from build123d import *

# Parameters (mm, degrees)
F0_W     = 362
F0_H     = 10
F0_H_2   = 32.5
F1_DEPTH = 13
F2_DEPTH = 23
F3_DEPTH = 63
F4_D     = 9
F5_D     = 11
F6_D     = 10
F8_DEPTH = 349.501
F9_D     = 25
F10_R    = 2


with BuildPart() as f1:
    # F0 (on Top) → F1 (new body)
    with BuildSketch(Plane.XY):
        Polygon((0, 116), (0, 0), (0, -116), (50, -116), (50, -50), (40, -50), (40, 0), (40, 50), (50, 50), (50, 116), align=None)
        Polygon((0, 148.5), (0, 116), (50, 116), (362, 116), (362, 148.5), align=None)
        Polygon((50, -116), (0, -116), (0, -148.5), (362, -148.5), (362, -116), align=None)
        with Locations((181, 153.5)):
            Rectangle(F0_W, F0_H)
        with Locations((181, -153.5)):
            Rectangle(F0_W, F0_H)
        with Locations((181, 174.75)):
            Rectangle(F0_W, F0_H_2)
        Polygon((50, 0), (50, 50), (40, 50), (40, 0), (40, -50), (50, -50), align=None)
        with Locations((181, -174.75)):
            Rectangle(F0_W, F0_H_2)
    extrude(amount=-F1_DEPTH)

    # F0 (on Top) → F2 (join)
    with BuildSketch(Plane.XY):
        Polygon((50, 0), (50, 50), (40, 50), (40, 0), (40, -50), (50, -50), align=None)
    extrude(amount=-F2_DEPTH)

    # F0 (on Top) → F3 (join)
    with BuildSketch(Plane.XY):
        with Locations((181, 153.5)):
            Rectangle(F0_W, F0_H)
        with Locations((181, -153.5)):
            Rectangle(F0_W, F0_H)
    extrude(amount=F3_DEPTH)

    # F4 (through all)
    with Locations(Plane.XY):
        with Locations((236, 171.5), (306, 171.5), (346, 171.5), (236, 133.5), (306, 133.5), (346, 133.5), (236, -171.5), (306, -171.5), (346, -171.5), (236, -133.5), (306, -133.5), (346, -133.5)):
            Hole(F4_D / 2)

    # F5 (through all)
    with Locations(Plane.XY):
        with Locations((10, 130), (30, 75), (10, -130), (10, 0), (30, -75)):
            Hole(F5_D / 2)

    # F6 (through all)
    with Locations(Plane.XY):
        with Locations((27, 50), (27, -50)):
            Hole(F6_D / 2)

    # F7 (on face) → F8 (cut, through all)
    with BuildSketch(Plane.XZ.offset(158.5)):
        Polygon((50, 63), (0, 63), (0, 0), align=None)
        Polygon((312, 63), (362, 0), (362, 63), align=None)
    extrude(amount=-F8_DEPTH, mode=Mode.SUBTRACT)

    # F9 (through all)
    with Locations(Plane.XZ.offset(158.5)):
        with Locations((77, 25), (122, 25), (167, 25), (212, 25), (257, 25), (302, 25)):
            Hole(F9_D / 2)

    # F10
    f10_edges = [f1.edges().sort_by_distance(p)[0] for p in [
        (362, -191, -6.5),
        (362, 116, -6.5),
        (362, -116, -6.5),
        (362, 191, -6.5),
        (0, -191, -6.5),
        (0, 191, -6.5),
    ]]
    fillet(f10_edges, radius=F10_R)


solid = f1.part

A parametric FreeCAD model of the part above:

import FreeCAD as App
import Part
import Sketcher
from FreeCAD import Vector


def edges_at(feature, points):
    """Names of the edges that pass closest to the given points."""
    edges = feature.Shape.Edges
    near = lambda p: min(range(len(edges)), key=lambda i: edges[i].distToShape(Part.Vertex(*p))[0])
    return sorted({f"Edge{near(p) + 1}" for p in points})

doc = App.newDocument("Part")
body = doc.addObject("PartDesign::Body", "Body")

sketch1 = body.newObject("Sketcher::SketchObject", "Sketch")
sketch1.AttachmentSupport = (doc.getObject("XY_Plane"), [""])
sketch1.MapMode = "FlatFace"
sketch1.addGeometry([
    Part.LineSegment(Vector(50, -116, 0), Vector(50, 116, 0)),
    Part.LineSegment(Vector(50, 116, 0), Vector(362, 116, 0)),
    Part.LineSegment(Vector(362, 116, 0), Vector(362, 191, 0)),
    Part.LineSegment(Vector(362, 191, 0), Vector(0, 191, 0)),
    Part.LineSegment(Vector(0, 191, 0), Vector(0, -191, 0)),
    Part.LineSegment(Vector(0, -191, 0), Vector(362, -191, 0)),
    Part.LineSegment(Vector(362, -191, 0), Vector(362, -116, 0)),
    Part.LineSegment(Vector(362, -116, 0), Vector(50, -116, 0)),
], False)
sketch1.addConstraint([
    Sketcher.Constraint("Coincident", 0, 2, 1, 1),
    Sketcher.Constraint("Coincident", 1, 2, 2, 1),
    Sketcher.Constraint("Coincident", 2, 2, 3, 1),
    Sketcher.Constraint("Coincident", 3, 2, 4, 1),
    Sketcher.Constraint("Coincident", 4, 2, 5, 1),
    Sketcher.Constraint("Coincident", 5, 2, 6, 1),
    Sketcher.Constraint("Coincident", 6, 2, 7, 1),
    Sketcher.Constraint("Coincident", 7, 2, 0, 1),
    Sketcher.Constraint("Vertical", 0),
    Sketcher.Constraint("Horizontal", 1),
    Sketcher.Constraint("Vertical", 2),
    Sketcher.Constraint("Horizontal", 3),
    Sketcher.Constraint("Vertical", 4),
    Sketcher.Constraint("Horizontal", 5),
    Sketcher.Constraint("Vertical", 6),
    Sketcher.Constraint("Horizontal", 7),
    Sketcher.Constraint("Symmetric", 3, 2, 4, 2, -1, 1),
    Sketcher.Constraint("Symmetric", 1, 2, 6, 2, -1),
    Sketcher.Constraint("DistanceX", 1, 1, 1, 2, 312.0),
    Sketcher.Constraint("DistanceX", 3, 2, 3, 1, 362.0),
    Sketcher.Constraint("DistanceY", 0, 1, 0, 2, 232.0),
    Sketcher.Constraint("DistanceY", 2, 1, 2, 2, 75.0),
])
pad1 = body.newObject("PartDesign::Pad", "Pad")
pad1.Profile = sketch1
pad1.Length = 13
pad1.Reversed = True

sketch2 = body.newObject("Sketcher::SketchObject", "Sketch001")
sketch2.AttachmentSupport = (doc.getObject("XY_Plane"), [""])
sketch2.MapMode = "FlatFace"
sketch2.addGeometry([
    Part.LineSegment(Vector(50, 50, 0), Vector(40, 50, 0)),
    Part.LineSegment(Vector(40, 50, 0), Vector(40, -50, 0)),
    Part.LineSegment(Vector(40, -50, 0), Vector(50, -50, 0)),
    Part.LineSegment(Vector(50, -50, 0), Vector(50, 50, 0)),
], False)
sketch2.addConstraint([
    Sketcher.Constraint("Coincident", 0, 2, 1, 1),
    Sketcher.Constraint("Coincident", 1, 2, 2, 1),
    Sketcher.Constraint("Coincident", 2, 2, 3, 1),
    Sketcher.Constraint("Coincident", 3, 2, 0, 1),
    Sketcher.Constraint("Horizontal", 0),
    Sketcher.Constraint("Vertical", 1),
    Sketcher.Constraint("Horizontal", 2),
    Sketcher.Constraint("Vertical", 3),
    Sketcher.Constraint("DistanceX", 0, 2, 0, 1, 10.0),
    Sketcher.Constraint("DistanceY", 1, 2, 1, 1, 100.0),
    Sketcher.Constraint("DistanceX", -1, 1, 0, 2, 40.0),
    Sketcher.Constraint("DistanceY", -1, 1, 0, 2, 50.0),
])
pad2 = body.newObject("PartDesign::Pad", "Pad001")
pad2.Profile = sketch2
pad2.Length = 23
pad2.Reversed = True

sketch3 = body.newObject("Sketcher::SketchObject", "Sketch002")
sketch3.AttachmentSupport = (doc.getObject("XY_Plane"), [""])
sketch3.MapMode = "FlatFace"
sketch3.addGeometry([
    Part.LineSegment(Vector(0, 158.5, 0), Vector(0, 148.5, 0)),
    Part.LineSegment(Vector(0, 148.5, 0), Vector(362, 148.5, 0)),
    Part.LineSegment(Vector(362, 148.5, 0), Vector(362, 158.5, 0)),
    Part.LineSegment(Vector(362, 158.5, 0), Vector(0, 158.5, 0)),
    Part.LineSegment(Vector(0, -148.5, 0), Vector(0, -158.5, 0)),
    Part.LineSegment(Vector(0, -158.5, 0), Vector(362, -158.5, 0)),
    Part.LineSegment(Vector(362, -158.5, 0), Vector(362, -148.5, 0)),
    Part.LineSegment(Vector(362, -148.5, 0), Vector(0, -148.5, 0)),
], False)
sketch3.addConstraint([
    Sketcher.Constraint("Coincident", 0, 2, 1, 1),
    Sketcher.Constraint("Coincident", 1, 2, 2, 1),
    Sketcher.Constraint("Coincident", 2, 2, 3, 1),
    Sketcher.Constraint("Coincident", 3, 2, 0, 1),
    Sketcher.Constraint("Coincident", 4, 2, 5, 1),
    Sketcher.Constraint("Coincident", 5, 2, 6, 1),
    Sketcher.Constraint("Coincident", 6, 2, 7, 1),
    Sketcher.Constraint("Coincident", 7, 2, 4, 1),
    Sketcher.Constraint("Vertical", 0),
    Sketcher.Constraint("Horizontal", 1),
    Sketcher.Constraint("Vertical", 2),
    Sketcher.Constraint("Horizontal", 3),
    Sketcher.Constraint("Vertical", 4),
    Sketcher.Constraint("Horizontal", 5),
    Sketcher.Constraint("Vertical", 6),
    Sketcher.Constraint("Horizontal", 7),
    Sketcher.Constraint("Symmetric", 3, 2, 4, 2, -1, 1),
    Sketcher.Constraint("Symmetric", 1, 2, 6, 2, -1),
    Sketcher.Constraint("PointOnObject", 0, 2, -2),
    Sketcher.Constraint("DistanceX", 1, 1, 1, 2, 362.0),
    Sketcher.Constraint("DistanceY", 0, 2, 0, 1, 10.0),
    Sketcher.Constraint("DistanceY", 4, 2, 0, 2, 307.0),
])
pad3 = body.newObject("PartDesign::Pad", "Pad002")
pad3.Profile = sketch3
pad3.Length = 63

sketch4 = body.newObject("Sketcher::SketchObject", "Sketch003")
sketch4.AttachmentSupport = (doc.getObject("XY_Plane"), [""])
sketch4.MapMode = "FlatFace"
sketch4.addGeometry([
    Part.Circle(Vector(236, 171.5, 0), Vector(0, 0, 1), 4.5),
    Part.Circle(Vector(306, 171.5, 0), Vector(0, 0, 1), 4.5),
    Part.Circle(Vector(346, 171.5, 0), Vector(0, 0, 1), 4.5),
    Part.Circle(Vector(236, 133.5, 0), Vector(0, 0, 1), 4.5),
    Part.Circle(Vector(306, 133.5, 0), Vector(0, 0, 1), 4.5),
    Part.Circle(Vector(346, 133.5, 0), Vector(0, 0, 1), 4.5),
    Part.Circle(Vector(236, -171.5, 0), Vector(0, 0, 1), 4.5),
    Part.Circle(Vector(306, -171.5, 0), Vector(0, 0, 1), 4.5),
    Part.Circle(Vector(346, -171.5, 0), Vector(0, 0, 1), 4.5),
    Part.Circle(Vector(236, -133.5, 0), Vector(0, 0, 1), 4.5),
    Part.Circle(Vector(306, -133.5, 0), Vector(0, 0, 1), 4.5),
    Part.Circle(Vector(346, -133.5, 0), Vector(0, 0, 1), 4.5),
], False)
sketch4.addConstraint([
    Sketcher.Constraint("Equal", 0, 1),
    Sketcher.Constraint("Equal", 1, 2),
    Sketcher.Constraint("Equal", 2, 3),
    Sketcher.Constraint("Equal", 3, 4),
    Sketcher.Constraint("Equal", 4, 5),
    Sketcher.Constraint("Equal", 5, 6),
    Sketcher.Constraint("Equal", 6, 7),
    Sketcher.Constraint("Equal", 7, 8),
    Sketcher.Constraint("Equal", 8, 9),
    Sketcher.Constraint("Equal", 9, 10),
    Sketcher.Constraint("Equal", 10, 11),
    Sketcher.Constraint("Symmetric", 0, 3, 6, 3, -1),
    Sketcher.Constraint("Symmetric", 1, 3, 7, 3, -1),
    Sketcher.Constraint("Symmetric", 2, 3, 8, 3, -1),
    Sketcher.Constraint("Symmetric", 3, 3, 9, 3, -1),
    Sketcher.Constraint("Symmetric", 4, 3, 10, 3, -1),
    Sketcher.Constraint("Symmetric", 5, 3, 11, 3, -1),
    Sketcher.Constraint("Horizontal", 0, 3, 1, 3),
    Sketcher.Constraint("Horizontal", 1, 3, 2, 3),
    Sketcher.Constraint("Horizontal", 3, 3, 4, 3),
    Sketcher.Constraint("Horizontal", 4, 3, 5, 3),
    Sketcher.Constraint("Vertical", 0, 3, 3, 3),
    Sketcher.Constraint("Vertical", 1, 3, 4, 3),
    Sketcher.Constraint("Vertical", 2, 3, 5, 3),
    Sketcher.Constraint("Diameter", 0, 9.0),
    Sketcher.Constraint("DistanceX", -1, 1, 0, 3, 236.0),
    Sketcher.Constraint("DistanceX", -1, 1, 1, 3, 306.0),
    Sketcher.Constraint("DistanceX", -1, 1, 2, 3, 346.0),
    Sketcher.Constraint("DistanceY", 3, 3, 0, 3, 38.0),
    Sketcher.Constraint("DistanceY", 6, 3, 3, 3, 305.0),
])
doc.recompute()
hole = body.newObject("PartDesign::Hole", "Hole")
hole.Profile = sketch4
hole.ThreadType = "None"
hole.Diameter = 9
hole.DepthType = "ThroughAll"

sketch5 = body.newObject("Sketcher::SketchObject", "Sketch004")
sketch5.AttachmentSupport = (doc.getObject("XY_Plane"), [""])
sketch5.MapMode = "FlatFace"
sketch5.addGeometry([
    Part.Circle(Vector(10, 130, 0), Vector(0, 0, 1), 5.5),
    Part.Circle(Vector(30, 75, 0), Vector(0, 0, 1), 5.5),
    Part.Circle(Vector(10, -130, 0), Vector(0, 0, 1), 5.5),
    Part.Circle(Vector(10, 0, 0), Vector(0, 0, 1), 5.5),
    Part.Circle(Vector(30, -75, 0), Vector(0, 0, 1), 5.5),
], False)
sketch5.addConstraint([
    Sketcher.Constraint("Equal", 0, 1),
    Sketcher.Constraint("Equal", 1, 2),
    Sketcher.Constraint("Equal", 2, 3),
    Sketcher.Constraint("Equal", 3, 4),
    Sketcher.Constraint("Symmetric", 0, 3, 2, 3, -1),
    Sketcher.Constraint("Symmetric", 1, 3, 4, 3, -1),
    Sketcher.Constraint("PointOnObject", 3, 3, -1),
    Sketcher.Constraint("Vertical", 2, 3, 3, 3),
    Sketcher.Constraint("Diameter", 0, 11.0),
    Sketcher.Constraint("DistanceX", -1, 1, 0, 3, 10.0),
    Sketcher.Constraint("DistanceY", -1, 1, 0, 3, 130.0),
    Sketcher.Constraint("DistanceX", -1, 1, 1, 3, 30.0),
    Sketcher.Constraint("DistanceY", -1, 1, 1, 3, 75.0),
])
doc.recompute()
hole2 = body.newObject("PartDesign::Hole", "Hole001")
hole2.Profile = sketch5
hole2.ThreadType = "None"
hole2.Diameter = 11
hole2.DepthType = "ThroughAll"

sketch6 = body.newObject("Sketcher::SketchObject", "Sketch005")
sketch6.AttachmentSupport = (doc.getObject("XY_Plane"), [""])
sketch6.MapMode = "FlatFace"
sketch6.addGeometry([
    Part.Circle(Vector(27, 50, 0), Vector(0, 0, 1), 5),
    Part.Circle(Vector(27, -50, 0), Vector(0, 0, 1), 5),
], False)
sketch6.addConstraint([
    Sketcher.Constraint("Equal", 0, 1),
    Sketcher.Constraint("Symmetric", 0, 3, 1, 3, -1),
    Sketcher.Constraint("Diameter", 0, 10.0),
    Sketcher.Constraint("DistanceX", -1, 1, 0, 3, 27.0),
    Sketcher.Constraint("DistanceY", -1, 1, 0, 3, 50.0),
])
doc.recompute()
hole3 = body.newObject("PartDesign::Hole", "Hole002")
hole3.Profile = sketch6
hole3.ThreadType = "None"
hole3.Diameter = 10
hole3.DepthType = "ThroughAll"

sketch7 = body.newObject("Sketcher::SketchObject", "Sketch006")
sketch7.AttachmentSupport = (doc.getObject("XZ_Plane"), [""])
sketch7.MapMode = "FlatFace"
sketch7.AttachmentOffset = App.Placement(Vector(0, 0, 158.5), App.Rotation())
sketch7.addGeometry([
    Part.LineSegment(Vector(50, 63, 0), Vector(0, 63, 0)),
    Part.LineSegment(Vector(0, 63, 0), Vector(0, 0, 0)),
    Part.LineSegment(Vector(0, 0, 0), Vector(50, 63, 0)),
    Part.LineSegment(Vector(312, 63, 0), Vector(362, 0, 0)),
    Part.LineSegment(Vector(362, 0, 0), Vector(362, 63, 0)),
    Part.LineSegment(Vector(362, 63, 0), Vector(312, 63, 0)),
], False)
sketch7.addConstraint([
    Sketcher.Constraint("Coincident", 0, 2, 1, 1),
    Sketcher.Constraint("Coincident", 1, 2, 2, 1),
    Sketcher.Constraint("Coincident", 2, 2, 0, 1),
    Sketcher.Constraint("Coincident", 3, 2, 4, 1),
    Sketcher.Constraint("Coincident", 4, 2, 5, 1),
    Sketcher.Constraint("Coincident", 5, 2, 3, 1),
    Sketcher.Constraint("Horizontal", 0),
    Sketcher.Constraint("Vertical", 1),
    Sketcher.Constraint("Vertical", 4),
    Sketcher.Constraint("Horizontal", 5),
    Sketcher.Constraint("Coincident", 1, 2, -1, 1),
    Sketcher.Constraint("PointOnObject", 3, 2, -1),
    Sketcher.Constraint("Horizontal", 2, 2, 4, 2),
    Sketcher.Constraint("Equal", 0, 5),
    Sketcher.Constraint("DistanceX", 0, 2, 0, 1, 50.0),
    Sketcher.Constraint("DistanceY", 1, 2, 1, 1, 63.0),
    Sketcher.Constraint("DistanceX", -1, 1, 3, 2, 362.0),
])
pocket1 = body.newObject("PartDesign::Pocket", "Pocket")
pocket1.Profile = sketch7
pocket1.Type = "ThroughAll"

sketch8 = body.newObject("Sketcher::SketchObject", "Sketch007")
sketch8.AttachmentSupport = (doc.getObject("XZ_Plane"), [""])
sketch8.MapMode = "FlatFace"
sketch8.AttachmentOffset = App.Placement(Vector(0, 0, 158.5), App.Rotation())
sketch8.addGeometry([
    Part.Circle(Vector(77, 25, 0), Vector(0, 0, 1), 12.5),
    Part.Circle(Vector(122, 25, 0), Vector(0, 0, 1), 12.5),
    Part.Circle(Vector(167, 25, 0), Vector(0, 0, 1), 12.5),
    Part.Circle(Vector(212, 25, 0), Vector(0, 0, 1), 12.5),
    Part.Circle(Vector(257, 25, 0), Vector(0, 0, 1), 12.5),
    Part.Circle(Vector(302, 25, 0), Vector(0, 0, 1), 12.5),
], False)
sketch8.addConstraint([
    Sketcher.Constraint("Equal", 0, 1),
    Sketcher.Constraint("Equal", 1, 2),
    Sketcher.Constraint("Equal", 2, 3),
    Sketcher.Constraint("Equal", 3, 4),
    Sketcher.Constraint("Equal", 4, 5),
    Sketcher.Constraint("Horizontal", 0, 3, 1, 3),
    Sketcher.Constraint("Horizontal", 1, 3, 2, 3),
    Sketcher.Constraint("Horizontal", 2, 3, 3, 3),
    Sketcher.Constraint("Horizontal", 3, 3, 4, 3),
    Sketcher.Constraint("Horizontal", 4, 3, 5, 3),
    Sketcher.Constraint("Diameter", 0, 25.0),
    Sketcher.Constraint("DistanceX", -1, 1, 0, 3, 77.0),
    Sketcher.Constraint("DistanceY", -1, 1, 0, 3, 25.0),
    Sketcher.Constraint("DistanceX", -1, 1, 1, 3, 122.0),
    Sketcher.Constraint("DistanceX", -1, 1, 2, 3, 167.0),
    Sketcher.Constraint("DistanceX", -1, 1, 3, 3, 212.0),
    Sketcher.Constraint("DistanceX", -1, 1, 4, 3, 257.0),
    Sketcher.Constraint("DistanceX", -1, 1, 5, 3, 302.0),
])
doc.recompute()
hole4 = body.newObject("PartDesign::Hole", "Hole003")
hole4.Profile = sketch8
hole4.ThreadType = "None"
hole4.Diameter = 25
hole4.DepthType = "ThroughAll"
doc.recompute()

fillet = body.newObject("PartDesign::Fillet", "Fillet")
fillet.Base = (hole4, edges_at(hole4, [
    (362, -191, -6.5),
    (362, 116, -6.5),
    (362, -116, -6.5),
    (362, 191, -6.5),
    (0, -191, -6.5),
    (0, 191, -6.5),
]))
fillet.Radius = 2

doc.recompute()
